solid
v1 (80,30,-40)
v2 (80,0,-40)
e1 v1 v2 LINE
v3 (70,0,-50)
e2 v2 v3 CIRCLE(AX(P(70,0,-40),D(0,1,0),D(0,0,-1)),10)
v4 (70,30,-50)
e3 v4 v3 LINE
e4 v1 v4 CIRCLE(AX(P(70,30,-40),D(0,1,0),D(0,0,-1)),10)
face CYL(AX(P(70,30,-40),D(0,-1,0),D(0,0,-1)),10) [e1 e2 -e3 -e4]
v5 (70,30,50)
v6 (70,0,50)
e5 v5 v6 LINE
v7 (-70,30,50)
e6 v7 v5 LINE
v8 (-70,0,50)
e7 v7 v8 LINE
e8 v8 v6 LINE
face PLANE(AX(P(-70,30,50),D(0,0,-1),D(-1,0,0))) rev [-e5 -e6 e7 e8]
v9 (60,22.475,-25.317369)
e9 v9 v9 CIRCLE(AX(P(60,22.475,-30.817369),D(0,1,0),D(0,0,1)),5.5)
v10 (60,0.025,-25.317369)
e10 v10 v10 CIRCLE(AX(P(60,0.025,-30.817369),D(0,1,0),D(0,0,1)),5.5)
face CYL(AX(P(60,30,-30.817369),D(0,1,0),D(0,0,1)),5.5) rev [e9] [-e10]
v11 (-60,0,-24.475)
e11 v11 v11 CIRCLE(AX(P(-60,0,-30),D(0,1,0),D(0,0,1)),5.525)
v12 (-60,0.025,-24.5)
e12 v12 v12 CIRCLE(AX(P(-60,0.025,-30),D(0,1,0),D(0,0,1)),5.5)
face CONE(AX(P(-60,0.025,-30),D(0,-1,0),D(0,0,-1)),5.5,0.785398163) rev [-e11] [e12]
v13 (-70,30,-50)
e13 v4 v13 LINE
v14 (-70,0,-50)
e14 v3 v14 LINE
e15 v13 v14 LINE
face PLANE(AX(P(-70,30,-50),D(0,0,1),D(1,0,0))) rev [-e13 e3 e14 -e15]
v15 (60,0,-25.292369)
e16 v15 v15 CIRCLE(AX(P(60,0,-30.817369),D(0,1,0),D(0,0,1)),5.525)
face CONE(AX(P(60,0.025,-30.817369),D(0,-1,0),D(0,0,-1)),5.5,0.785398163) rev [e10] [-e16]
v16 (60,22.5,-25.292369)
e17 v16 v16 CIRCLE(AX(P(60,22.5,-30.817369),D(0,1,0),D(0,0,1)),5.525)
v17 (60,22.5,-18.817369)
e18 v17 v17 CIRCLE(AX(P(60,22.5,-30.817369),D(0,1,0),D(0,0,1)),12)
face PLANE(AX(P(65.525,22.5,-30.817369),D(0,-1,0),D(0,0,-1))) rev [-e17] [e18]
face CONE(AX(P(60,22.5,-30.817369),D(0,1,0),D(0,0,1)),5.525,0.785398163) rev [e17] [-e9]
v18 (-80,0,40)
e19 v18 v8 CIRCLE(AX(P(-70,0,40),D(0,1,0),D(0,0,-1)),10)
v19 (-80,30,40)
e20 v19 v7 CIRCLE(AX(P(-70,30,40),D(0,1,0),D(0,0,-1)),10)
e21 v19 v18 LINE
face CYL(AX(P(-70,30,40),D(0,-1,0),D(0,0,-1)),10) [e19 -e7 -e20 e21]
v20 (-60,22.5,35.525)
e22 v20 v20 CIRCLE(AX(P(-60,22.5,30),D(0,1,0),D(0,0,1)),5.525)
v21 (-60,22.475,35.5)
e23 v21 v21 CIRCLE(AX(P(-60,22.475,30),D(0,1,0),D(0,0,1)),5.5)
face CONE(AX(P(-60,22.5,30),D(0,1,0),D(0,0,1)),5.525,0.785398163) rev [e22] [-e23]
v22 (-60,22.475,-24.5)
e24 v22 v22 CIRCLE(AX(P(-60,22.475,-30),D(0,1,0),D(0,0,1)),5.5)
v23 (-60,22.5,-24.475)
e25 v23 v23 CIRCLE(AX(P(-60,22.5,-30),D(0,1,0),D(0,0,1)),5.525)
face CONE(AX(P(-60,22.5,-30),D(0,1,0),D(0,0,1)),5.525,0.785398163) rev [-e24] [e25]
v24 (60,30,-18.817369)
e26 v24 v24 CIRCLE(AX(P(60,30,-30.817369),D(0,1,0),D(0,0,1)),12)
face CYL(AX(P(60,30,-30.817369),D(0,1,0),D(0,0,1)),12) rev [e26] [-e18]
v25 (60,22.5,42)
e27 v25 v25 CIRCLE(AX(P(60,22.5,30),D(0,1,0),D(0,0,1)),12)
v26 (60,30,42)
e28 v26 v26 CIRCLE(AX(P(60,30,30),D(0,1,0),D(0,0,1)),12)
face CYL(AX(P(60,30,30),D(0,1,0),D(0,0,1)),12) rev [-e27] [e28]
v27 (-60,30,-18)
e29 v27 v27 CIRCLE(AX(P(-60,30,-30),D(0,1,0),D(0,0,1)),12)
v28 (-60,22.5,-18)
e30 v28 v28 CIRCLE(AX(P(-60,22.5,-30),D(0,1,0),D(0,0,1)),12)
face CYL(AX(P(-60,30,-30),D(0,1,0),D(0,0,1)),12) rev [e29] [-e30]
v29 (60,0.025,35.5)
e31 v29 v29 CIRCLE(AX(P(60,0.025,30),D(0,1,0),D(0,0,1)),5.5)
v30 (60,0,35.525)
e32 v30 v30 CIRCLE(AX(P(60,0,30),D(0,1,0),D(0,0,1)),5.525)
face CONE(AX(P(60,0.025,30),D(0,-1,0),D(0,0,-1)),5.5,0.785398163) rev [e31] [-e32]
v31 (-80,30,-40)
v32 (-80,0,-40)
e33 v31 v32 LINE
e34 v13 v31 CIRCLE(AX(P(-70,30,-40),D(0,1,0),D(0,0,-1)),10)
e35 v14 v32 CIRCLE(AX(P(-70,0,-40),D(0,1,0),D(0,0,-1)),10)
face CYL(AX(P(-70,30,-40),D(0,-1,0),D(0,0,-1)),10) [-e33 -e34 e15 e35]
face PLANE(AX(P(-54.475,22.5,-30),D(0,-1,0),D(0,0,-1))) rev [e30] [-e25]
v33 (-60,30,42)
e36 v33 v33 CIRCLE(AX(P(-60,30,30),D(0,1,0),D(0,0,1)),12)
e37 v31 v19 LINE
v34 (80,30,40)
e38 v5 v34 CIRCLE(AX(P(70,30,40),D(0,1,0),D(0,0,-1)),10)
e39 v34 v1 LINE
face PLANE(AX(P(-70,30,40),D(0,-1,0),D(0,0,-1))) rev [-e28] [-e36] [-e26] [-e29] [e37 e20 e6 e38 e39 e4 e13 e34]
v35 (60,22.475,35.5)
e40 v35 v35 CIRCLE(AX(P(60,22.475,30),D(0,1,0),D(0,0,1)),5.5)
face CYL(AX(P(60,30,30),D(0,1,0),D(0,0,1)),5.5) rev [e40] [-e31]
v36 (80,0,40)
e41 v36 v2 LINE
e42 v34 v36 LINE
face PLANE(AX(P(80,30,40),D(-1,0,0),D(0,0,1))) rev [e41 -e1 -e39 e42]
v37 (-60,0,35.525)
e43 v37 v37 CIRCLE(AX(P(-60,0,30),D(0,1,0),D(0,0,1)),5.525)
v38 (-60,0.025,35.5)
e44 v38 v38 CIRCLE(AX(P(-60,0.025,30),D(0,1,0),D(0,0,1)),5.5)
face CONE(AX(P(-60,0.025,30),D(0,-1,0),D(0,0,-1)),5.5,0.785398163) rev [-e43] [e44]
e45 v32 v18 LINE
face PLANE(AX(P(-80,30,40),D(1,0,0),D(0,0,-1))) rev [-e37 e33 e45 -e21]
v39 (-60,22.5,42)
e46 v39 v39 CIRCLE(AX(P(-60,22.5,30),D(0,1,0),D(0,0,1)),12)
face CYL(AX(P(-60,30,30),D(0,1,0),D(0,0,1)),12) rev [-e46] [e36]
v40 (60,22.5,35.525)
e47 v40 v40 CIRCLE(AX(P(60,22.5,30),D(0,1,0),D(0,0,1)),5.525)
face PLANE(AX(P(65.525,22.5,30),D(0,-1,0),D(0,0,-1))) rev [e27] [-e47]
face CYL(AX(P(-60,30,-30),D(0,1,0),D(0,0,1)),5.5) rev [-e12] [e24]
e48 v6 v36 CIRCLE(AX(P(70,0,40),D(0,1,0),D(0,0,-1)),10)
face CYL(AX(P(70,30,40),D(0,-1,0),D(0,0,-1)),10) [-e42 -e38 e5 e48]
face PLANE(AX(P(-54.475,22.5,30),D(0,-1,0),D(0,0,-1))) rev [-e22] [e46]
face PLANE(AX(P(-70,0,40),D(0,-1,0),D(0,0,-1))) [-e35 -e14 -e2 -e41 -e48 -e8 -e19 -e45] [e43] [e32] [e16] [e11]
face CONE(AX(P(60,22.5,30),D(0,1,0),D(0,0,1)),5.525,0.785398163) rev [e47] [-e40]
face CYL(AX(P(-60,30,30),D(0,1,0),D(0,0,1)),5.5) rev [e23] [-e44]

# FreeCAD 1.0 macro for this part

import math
import FreeCAD as App
import Part
import Sketcher

doc = App.newDocument("Part")
params = doc.addObject("Spreadsheet::Sheet", "Params")
for row, (alias, value) in enumerate([
    ("sketch1_radius", "10 mm"),
    ("sketch1_width", "140 mm"),
    ("sketch1_height", "80 mm"),
    ("pad1_length", "30 mm"),
    ("sketch2_width", "30 mm"),
    ("sketch2_height", "12 mm"),
    ("sketch2_width2", "7.5 mm"),
    ("sketch2_width3", "22.45 mm"),
    ("groove_angle", "360 deg"),
    ("linearpattern_pitch", "120.002784 mm"),
    ("linearpattern2_pitch", "60 mm"),
    ("linearpattern3_pitch", "134.164079 mm"),
], start=1):
    params.set(f"A{row}", alias)
    params.set(f"B{row}", "=" + value)
    params.setAlias(f"B{row}", alias)

body = doc.addObject("PartDesign::Body", "Body")

# Sketch on XZ plane
sketch1 = doc.addObject("Sketcher::SketchObject", "Sketch")
body.addObject(sketch1)
sketch1.AttachmentSupport = (doc.XZ_Plane, [""])
sketch1.MapMode = "FlatFace"
sketch1.addGeometry(Part.LineSegment(App.Vector(-70, 50, 0), App.Vector(70, 50, 0)), False)
sketch1.addGeometry(Part.ArcOfCircle(Part.Circle(App.Vector(70, 40, 0), App.Vector(0, 0, 1), 10), math.radians(0), math.radians(90)), False)
sketch1.addGeometry(Part.LineSegment(App.Vector(80, 40, 0), App.Vector(80, -40, 0)), False)
sketch1.addGeometry(Part.ArcOfCircle(Part.Circle(App.Vector(70, -40, 0), App.Vector(0, 0, 1), 10), math.radians(-90), math.radians(0)), False)
sketch1.addGeometry(Part.LineSegment(App.Vector(70, -50, 0), App.Vector(-70, -50, 0)), False)
sketch1.addGeometry(Part.ArcOfCircle(Part.Circle(App.Vector(-70, -40, 0), App.Vector(0, 0, 1), 10), math.radians(180), math.radians(270)), False)
sketch1.addGeometry(Part.LineSegment(App.Vector(-80, -40, 0), App.Vector(-80, 40, 0)), False)
sketch1.addGeometry(Part.ArcOfCircle(Part.Circle(App.Vector(-70, 40, 0), App.Vector(0, 0, 1), 10), math.radians(90), math.radians(180)), False)
sketch1.addConstraint(Sketcher.Constraint("Tangent", 0, 2, 1, 2))
sketch1.addConstraint(Sketcher.Constraint("Tangent", 1, 1, 2, 1))
sketch1.addConstraint(Sketcher.Constraint("Tangent", 2, 2, 3, 2))
sketch1.addConstraint(Sketcher.Constraint("Tangent", 3, 1, 4, 1))
sketch1.addConstraint(Sketcher.Constraint("Tangent", 4, 2, 5, 2))
sketch1.addConstraint(Sketcher.Constraint("Tangent", 5, 1, 6, 1))
sketch1.addConstraint(Sketcher.Constraint("Tangent", 6, 2, 7, 2))
sketch1.addConstraint(Sketcher.Constraint("Tangent", 7, 1, 0, 1))
sketch1.addConstraint(Sketcher.Constraint("Horizontal", 0))
sketch1.addConstraint(Sketcher.Constraint("Vertical", 2))
sketch1.addConstraint(Sketcher.Constraint("Horizontal", 4))
sketch1.addConstraint(Sketcher.Constraint("Vertical", 6))
sketch1.addConstraint(Sketcher.Constraint("Equal", 1, 3))
sketch1.addConstraint(Sketcher.Constraint("Equal", 3, 5))
sketch1.addConstraint(Sketcher.Constraint("Equal", 5, 7))
sketch1.addConstraint(Sketcher.Constraint("Symmetric", 1, 3, 5, 3, -1, 1))
sketch1.addConstraint(Sketcher.Constraint("Radius", 1, 10.0))
sketch1.addConstraint(Sketcher.Constraint("DistanceX", 0, 1, 0, 2, 140.0))
sketch1.addConstraint(Sketcher.Constraint("DistanceY", 2, 2, 2, 1, 80.0))
sketch1.setExpression("Constraints[16]", "Params.sketch1_radius")
sketch1.setExpression("Constraints[17]", "Params.sketch1_width")
sketch1.setExpression("Constraints[18]", "Params.sketch1_height")
pad1 = doc.addObject("PartDesign::Pad", "Pad")
body.addObject(pad1)
pad1.Profile = sketch1
pad1.setExpression("Length", "Params.pad1_length")
pad1.Reversed = True

# Sketch on YZ plane
sketch2 = doc.addObject("Sketcher::SketchObject", "Sketch001")
body.addObject(sketch2)
sketch2.AttachmentSupport = (doc.YZ_Plane, [""])
sketch2.MapMode = "FlatFace"
sketch2.AttachmentOffset = App.Placement(App.Vector(0, 0, -60), App.Rotation())
sketch2.addGeometry(Part.LineSegment(App.Vector(0, -30, 0), App.Vector(30, -30, 0)), False)
sketch2.addGeometry(Part.LineSegment(App.Vector(30, -30, 0), App.Vector(30, -18, 0)), False)
sketch2.addGeometry(Part.LineSegment(App.Vector(30, -18, 0), App.Vector(22.5, -18, 0)), False)
sketch2.addGeometry(Part.LineSegment(App.Vector(22.5, -18, 0), App.Vector(22.5, -24.475, 0)), False)
sketch2.addGeometry(Part.LineSegment(App.Vector(22.5, -24.475, 0), App.Vector(22.475, -24.5, 0)), False)
sketch2.addGeometry(Part.LineSegment(App.Vector(22.475, -24.5, 0), App.Vector(0.025, -24.5, 0)), False)
sketch2.addGeometry(Part.LineSegment(App.Vector(0.025, -24.5, 0), App.Vector(0, -24.475, 0)), False)
sketch2.addGeometry(Part.LineSegment(App.Vector(0, -24.475, 0), App.Vector(0, -30, 0)), False)
sketch2.addGeometry(Part.LineSegment(App.Vector(30, -30, 0), App.Vector(0, -30, 0)), True)  # axis
sketch2.addConstraint(Sketcher.Constraint("Coincident", 0, 2, 1, 1))
sketch2.addConstraint(Sketcher.Constraint("Coincident", 1, 2, 2, 1))
sketch2.addConstraint(Sketcher.Constraint("Coincident", 2, 2, 3, 1))
sketch2.addConstraint(Sketcher.Constraint("Coincident", 3, 2, 4, 1))
sketch2.addConstraint(Sketcher.Constraint("Coincident", 4, 2, 5, 1))
sketch2.addConstraint(Sketcher.Constraint("Coincident", 5, 2, 6, 1))
sketch2.addConstraint(Sketcher.Constraint("Coincident", 6, 2, 7, 1))
sketch2.addConstraint(Sketcher.Constraint("Coincident", 7, 2, 0, 1))
sketch2.addConstraint(Sketcher.Constraint("Horizontal", 0))
sketch2.addConstraint(Sketcher.Constraint("Vertical", 1))
sketch2.addConstraint(Sketcher.Constraint("Horizontal", 2))
sketch2.addConstraint(Sketcher.Constraint("Vertical", 3))
sketch2.addConstraint(Sketcher.Constraint("Horizontal", 5))
sketch2.addConstraint(Sketcher.Constraint("Vertical", 7))
sketch2.addConstraint(Sketcher.Constraint("Horizontal", 8))
sketch2.addConstraint(Sketcher.Constraint("Coincident", 8, 1, 0, 2))
sketch2.addConstraint(Sketcher.Constraint("PointOnObject", 6, 2, -2))
sketch2.addConstraint(Sketcher.Constraint("PointOnObject", 8, 2, -2))
sketch2.addConstraint(Sketcher.Constraint("Perpendicular", 4, 6))
sketch2.addConstraint(Sketcher.Constraint("Horizontal", 3, 2, 6, 2))
sketch2.addConstraint(Sketcher.Constraint("Equal", 4, 6))
sketch2.addConstraint(Sketcher.Constraint("DistanceX", 0, 1, 0, 2, 30.0))
sketch2.addConstraint(Sketcher.Constraint("DistanceY", 1, 1, 1, 2, 12.0))
sketch2.addConstraint(Sketcher.Constraint("DistanceX", 2, 2, 2, 1, 7.5))
sketch2.addConstraint(Sketcher.Constraint("DistanceY", 0, 2, -1, 1, 30.0))
sketch2.addConstraint(Sketcher.Constraint("DistanceX", 5, 2, 5, 1, 22.45))
sketch2.addConstraint(Sketcher.Constraint("DistanceY", 4, 2, -1, 1, 24.5))
sketch2.setExpression("Constraints[21]", "Params.sketch2_width")
sketch2.setExpression("Constraints[22]", "Params.sketch2_height")
sketch2.setExpression("Constraints[23]", "Params.sketch2_width2")
sketch2.setExpression("Constraints[25]", "Params.sketch2_width3")
groove = doc.addObject("PartDesign::Groove", "Groove")
body.addObject(groove)
groove.Profile = sketch2
groove.ReferenceAxis = (sketch2, ["Axis0"])
groove.setExpression("Angle", "Params.groove_angle")
doc.recompute()

datumline = doc.addObject("PartDesign::Line", "DatumLine")
body.addObject(datumline)
datumline.Placement = App.Placement(App.Vector(0, 0, 0), App.Rotation(App.Vector(0, 0, 1), App.Vector(0.999976803, 0, -0.00681125)))
linearpattern = doc.addObject("PartDesign::LinearPattern", "LinearPattern")
body.addObject(linearpattern)
linearpattern.Originals = [groove]
linearpattern.Direction = (datumline, [""])
linearpattern.Mode = "offset"
linearpattern.setExpression("Offset", "Params.linearpattern_pitch")
linearpattern.Occurrences = 2
body.Tip = linearpattern
doc.recompute()

linearpattern2 = doc.addObject("PartDesign::LinearPattern", "LinearPattern001")
body.addObject(linearpattern2)
linearpattern2.Originals = [groove]
linearpattern2.Direction = (doc.Z_Axis, [""])
linearpattern2.Mode = "offset"
linearpattern2.setExpression("Offset", "Params.linearpattern2_pitch")
linearpattern2.Occurrences = 2
body.Tip = linearpattern2
doc.recompute()

datumline2 = doc.addObject("PartDesign::Line", "DatumLine001")
body.addObject(datumline2)
datumline2.Placement = App.Placement(App.Vector(0, 0, 0), App.Rotation(App.Vector(0, 0, 1), App.Vector(0.894427191, 0, 0.447213595)))
linearpattern3 = doc.addObject("PartDesign::LinearPattern", "LinearPattern002")
body.addObject(linearpattern3)
linearpattern3.Originals = [groove]
linearpattern3.Direction = (datumline2, [""])
linearpattern3.Mode = "offset"
linearpattern3.setExpression("Offset", "Params.linearpattern3_pitch")
linearpattern3.Occurrences = 2
body.Tip = linearpattern3

doc.recompute()
